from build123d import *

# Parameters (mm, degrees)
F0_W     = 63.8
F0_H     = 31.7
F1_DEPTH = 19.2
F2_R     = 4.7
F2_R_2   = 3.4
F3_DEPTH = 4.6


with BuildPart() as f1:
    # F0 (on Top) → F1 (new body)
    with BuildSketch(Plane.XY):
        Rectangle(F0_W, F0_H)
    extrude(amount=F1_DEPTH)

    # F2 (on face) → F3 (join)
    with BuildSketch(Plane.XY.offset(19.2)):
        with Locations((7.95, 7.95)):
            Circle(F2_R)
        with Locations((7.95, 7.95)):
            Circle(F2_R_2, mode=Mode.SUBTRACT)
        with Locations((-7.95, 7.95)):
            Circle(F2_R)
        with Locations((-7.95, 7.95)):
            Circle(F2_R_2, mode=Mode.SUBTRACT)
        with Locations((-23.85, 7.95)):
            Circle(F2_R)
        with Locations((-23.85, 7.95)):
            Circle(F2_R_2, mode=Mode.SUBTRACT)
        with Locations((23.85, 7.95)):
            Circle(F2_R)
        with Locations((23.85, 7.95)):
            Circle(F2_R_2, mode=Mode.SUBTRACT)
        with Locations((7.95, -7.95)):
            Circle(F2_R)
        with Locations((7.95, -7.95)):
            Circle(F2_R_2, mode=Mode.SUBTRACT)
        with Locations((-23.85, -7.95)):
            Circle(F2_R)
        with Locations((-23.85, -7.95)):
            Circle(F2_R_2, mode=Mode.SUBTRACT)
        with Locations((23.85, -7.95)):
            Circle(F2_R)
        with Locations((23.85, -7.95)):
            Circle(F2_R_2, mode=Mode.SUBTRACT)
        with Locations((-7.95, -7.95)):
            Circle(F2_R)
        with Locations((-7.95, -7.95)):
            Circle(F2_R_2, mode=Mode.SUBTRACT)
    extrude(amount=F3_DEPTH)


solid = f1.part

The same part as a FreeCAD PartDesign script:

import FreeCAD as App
import Part
import Sketcher

V = App.Vector
Q = App.Units.Quantity

doc = App.newDocument("Part")
body = doc.addObject("PartDesign::Body", "Body")

# Sketch on XY plane
sketch1 = body.newObject("Sketcher::SketchObject", "Sketch")
sketch1.AttachmentSupport = (doc.getObject("XY_Plane"), [""])
sketch1.MapMode = "FlatFace"
sketch1.addGeometry(Part.LineSegment(V(-31.9, 15.85, 0), V(-31.9, -15.85, 0)), False)
sketch1.addGeometry(Part.LineSegment(V(-31.9, -15.85, 0), V(31.9, -15.85, 0)), False)
sketch1.addGeometry(Part.LineSegment(V(31.9, -15.85, 0), V(31.9, 15.85, 0)), False)
sketch1.addGeometry(Part.LineSegment(V(31.9, 15.85, 0), V(-31.9, 15.85, 0)), False)
sketch1.addConstraint(Sketcher.Constraint("Coincident", 0, 2, 1, 1))
sketch1.addConstraint(Sketcher.Constraint("Coincident", 1, 2, 2, 1))
sketch1.addConstraint(Sketcher.Constraint("Coincident", 2, 2, 3, 1))
sketch1.addConstraint(Sketcher.Constraint("Coincident", 3, 2, 0, 1))
sketch1.addConstraint(Sketcher.Constraint("Vertical", 0))
sketch1.addConstraint(Sketcher.Constraint("Horizontal", 1))
sketch1.addConstraint(Sketcher.Constraint("Vertical", 2))
sketch1.addConstraint(Sketcher.Constraint("Horizontal", 3))
sketch1.addConstraint(Sketcher.Constraint("Symmetric", 0, 2, 2, 2, -1, 1))
sketch1.addConstraint(Sketcher.Constraint("DistanceX", 1, 1, 1, 2, Q("63.8 mm")))
sketch1.addConstraint(Sketcher.Constraint("DistanceY", 0, 2, 0, 1, Q("31.7 mm")))
pad1 = body.newObject("PartDesign::Pad", "Pad")
pad1.Profile = sketch1
pad1.Length = 19.2

# Sketch on XY plane
sketch2 = body.newObject("Sketcher::SketchObject", "Sketch001")
sketch2.AttachmentSupport = (doc.getObject("XY_Plane"), [""])
sketch2.MapMode = "FlatFace"
sketch2.AttachmentOffset = App.Placement(V(0, 0, 19.2), App.Rotation())
sketch2.addGeometry(Part.Circle(V(7.95, 7.95, 0), V(0, 0, 1), 4.7), False)
sketch2.addGeometry(Part.Circle(V(7.95, 7.95, 0), V(0, 0, 1), 3.4), False)
sketch2.addGeometry(Part.Circle(V(-7.95, 7.95, 0), V(0, 0, 1), 4.7), False)
sketch2.addGeometry(Part.Circle(V(-7.95, 7.95, 0), V(0, 0, 1), 3.4), False)
sketch2.addGeometry(Part.Circle(V(-23.85, 7.95, 0), V(0, 0, 1), 4.7), False)
sketch2.addGeometry(Part.Circle(V(-23.85, 7.95, 0), V(0, 0, 1), 3.4), False)
sketch2.addGeometry(Part.Circle(V(23.85, 7.95, 0), V(0, 0, 1), 4.7), False)
sketch2.addGeometry(Part.Circle(V(23.85, 7.95, 0), V(0, 0, 1), 3.4), False)
sketch2.addGeometry(Part.Circle(V(7.95, -7.95, 0), V(0, 0, 1), 4.7), False)
sketch2.addGeometry(Part.Circle(V(7.95, -7.95, 0), V(0, 0, 1), 3.4), False)
sketch2.addGeometry(Part.Circle(V(-23.85, -7.95, 0), V(0, 0, 1), 4.7), False)
sketch2.addGeometry(Part.Circle(V(-23.85, -7.95, 0), V(0, 0, 1), 3.4), False)
sketch2.addGeometry(Part.Circle(V(23.85, -7.95, 0), V(0, 0, 1), 4.7), False)
sketch2.addGeometry(Part.Circle(V(23.85, -7.95, 0), V(0, 0, 1), 3.4), False)
sketch2.addGeometry(Part.Circle(V(-7.95, -7.95, 0), V(0, 0, 1), 4.7), False)
sketch2.addGeometry(Part.Circle(V(-7.95, -7.95, 0), V(0, 0, 1), 3.4), False)
sketch2.addConstraint(Sketcher.Constraint("Coincident", 1, 3, 0, 3))
sketch2.addConstraint(Sketcher.Constraint("Coincident", 3, 3, 2, 3))
sketch2.addConstraint(Sketcher.Constraint("Coincident", 5, 3, 4, 3))
sketch2.addConstraint(Sketcher.Constraint("Coincident", 7, 3, 6, 3))
sketch2.addConstraint(Sketcher.Constraint("Coincident", 9, 3, 8, 3))
sketch2.addConstraint(Sketcher.Constraint("Coincident", 11, 3, 10, 3))
sketch2.addConstraint(Sketcher.Constraint("Coincident", 13, 3, 12, 3))
sketch2.addConstraint(Sketcher.Constraint("Coincident", 15, 3, 14, 3))
sketch2.addConstraint(Sketcher.Constraint("Equal", 0, 2))
sketch2.addConstraint(Sketcher.Constraint("Equal", 1, 3))
sketch2.addConstraint(Sketcher.Constraint("Equal", 2, 4))
sketch2.addConstraint(Sketcher.Constraint("Equal", 3, 5))
sketch2.addConstraint(Sketcher.Constraint("Equal", 4, 6))
sketch2.addConstraint(Sketcher.Constraint("Equal", 5, 7))
sketch2.addConstraint(Sketcher.Constraint("Equal", 6, 8))
sketch2.addConstraint(Sketcher.Constraint("Equal", 7, 9))
sketch2.addConstraint(Sketcher.Constraint("Equal", 8, 10))
sketch2.addConstraint(Sketcher.Constraint("Equal", 9, 11))
sketch2.addConstraint(Sketcher.Constraint("Equal", 10, 12))
sketch2.addConstraint(Sketcher.Constraint("Equal", 11, 13))
sketch2.addConstraint(Sketcher.Constraint("Equal", 12, 14))
sketch2.addConstraint(Sketcher.Constraint("Equal", 13, 15))
sketch2.addConstraint(Sketcher.Constraint("Symmetric", 2, 3, 8, 3, -1, 1))
sketch2.addConstraint(Sketcher.Constraint("Symmetric", 6, 3, 10, 3, -1, 1))
sketch2.addConstraint(Sketcher.Constraint("Symmetric", 4, 3, 12, 3, -1, 1))
sketch2.addConstraint(Sketcher.Constraint("Symmetric", 0, 3, 14, 3, -1, 1))
sketch2.addConstraint(Sketcher.Constraint("Symmetric", 0, 3, 2, 3, -2))
sketch2.addConstraint(Sketcher.Constraint("Symmetric", 4, 3, 6, 3, -2))
sketch2.addConstraint(Sketcher.Constraint("Horizontal", 3, 3, 4, 3))
sketch2.addConstraint(Sketcher.Constraint("Diameter", 0, Q("9.4 mm")))
sketch2.addConstraint(Sketcher.Constraint("Diameter", 1, Q("6.8 mm")))
sketch2.addConstraint(Sketcher.Constraint("DistanceX", 2, 3, 0, 3, Q("15.9 mm")))
sketch2.addConstraint(Sketcher.Constraint("DistanceX", 4, 3, 2, 3, Q("15.9 mm")))
sketch2.addConstraint(Sketcher.Constraint("DistanceY", 8, 3, 0, 3, Q("15.9 mm")))
pad2 = body.newObject("PartDesign::Pad", "Pad001")
pad2.Profile = sketch2
pad2.Length = 4.6

doc.recompute()
